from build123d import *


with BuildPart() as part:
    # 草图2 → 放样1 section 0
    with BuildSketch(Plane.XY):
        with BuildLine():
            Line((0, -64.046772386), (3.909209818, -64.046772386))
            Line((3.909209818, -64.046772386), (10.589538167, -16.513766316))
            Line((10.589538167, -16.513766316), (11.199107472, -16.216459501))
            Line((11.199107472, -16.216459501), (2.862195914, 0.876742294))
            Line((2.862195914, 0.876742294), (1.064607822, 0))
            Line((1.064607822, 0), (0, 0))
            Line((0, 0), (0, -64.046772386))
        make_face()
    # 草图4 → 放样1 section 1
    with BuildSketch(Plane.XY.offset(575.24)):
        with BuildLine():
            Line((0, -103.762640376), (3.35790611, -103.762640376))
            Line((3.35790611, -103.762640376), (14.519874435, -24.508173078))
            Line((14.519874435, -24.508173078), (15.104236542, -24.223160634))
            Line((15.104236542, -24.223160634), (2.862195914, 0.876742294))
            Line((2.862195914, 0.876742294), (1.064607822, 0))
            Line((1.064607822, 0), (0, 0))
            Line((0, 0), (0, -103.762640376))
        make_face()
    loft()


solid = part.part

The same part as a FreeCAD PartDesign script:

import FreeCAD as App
import Part
import Sketcher
Q = App.Units.Quantity


def add_polygon(sketch, points):
    """Adds a closed chain of lines whose ends are joined by coincident constraints."""
    first, n = sketch.GeometryCount, len(points)
    for a, b in zip(points, points[1:] + points[:1]):
        sketch.addGeometry(Part.LineSegment(App.Vector(*a, 0), App.Vector(*b, 0)), False)
    for i in range(n):
        sketch.addConstraint(Sketcher.Constraint("Coincident", first + i, 2, first + (i + 1) % n, 1))

doc = App.newDocument("Part")
body = doc.addObject("PartDesign::Body", "Body")

# Sketch on XY plane
sketch1 = doc.addObject("Sketcher::SketchObject", "Sketch")
body.addObject(sketch1)
sketch1.AttachmentSupport = (doc.XY_Plane, [""])
sketch1.MapMode = "FlatFace"
add_polygon(sketch1, [(0, -64), (3.9, -64), (10.6, -16.5), (11.2, -16.2), (2.9, 0.9), (1.1, 0), (0, 0)])  # lines 0-6
sketch1.addConstraint([
    Sketcher.Constraint("Horizontal", 0),
    Sketcher.Constraint("Horizontal", 5),
    Sketcher.Constraint("Vertical", 6),
    Sketcher.Constraint("Coincident", 5, 2, -1, 1),
    Sketcher.Constraint("Perpendicular", 2, 3),
    Sketcher.Constraint("Perpendicular", 3, 4),
    Sketcher.Constraint("Angle", 1, Q("82 deg")),
    Sketcher.Constraint("Angle", 2, Q("26 deg")),
    Sketcher.Constraint("Distance", 4, Q("2 mm")),
    Sketcher.Constraint("DistanceX", 0, 1, 0, 2, Q("3.90921 mm")),
    Sketcher.Constraint("DistanceY", 2, 2, 3, 2, Q("17.093202 mm")),
    Sketcher.Constraint("DistanceX", 4, 2, 0, 2, Q("2.844602 mm")),
    Sketcher.Constraint("Distance", 1, Q("48.00014 mm")),
])

# Sketch on XY plane
sketch2 = doc.addObject("Sketcher::SketchObject", "Sketch001")
body.addObject(sketch2)
sketch2.AttachmentSupport = (doc.XY_Plane, [""])
sketch2.MapMode = "FlatFace"
sketch2.AttachmentOffset = App.Placement(App.Vector(0, 0, 575.24), App.Rotation())
add_polygon(sketch2, [(0, -103.8), (3.4, -103.8), (14.5, -24.5), (15.1, -24.2), (2.9, 0.9), (1.1, 0), (0, 0)])  # lines 0-6
sketch2.addConstraint([
    Sketcher.Constraint("Horizontal", 0),
    Sketcher.Constraint("Horizontal", 5),
    Sketcher.Constraint("Vertical", 6),
    Sketcher.Constraint("Coincident", 5, 2, -1, 1),
    Sketcher.Constraint("Perpendicular", 2, 3),
    Sketcher.Constraint("Perpendicular", 3, 4),
    Sketcher.Constraint("Angle", 2, Q("26 deg")),
    Sketcher.Constraint("Distance", 4, Q("2 mm")),
    Sketcher.Constraint("Distance", 3, Q("27.926201 mm")),
    Sketcher.Constraint("DistanceY", 6, 2, 6, 1, Q("103.76264 mm")),
    Sketcher.Constraint("DistanceX", 4, 2, 0, 2, Q("2.293298 mm")),
    Sketcher.Constraint("DistanceX", 0, 1, 0, 2, Q("3.357906 mm")),
    Sketcher.Constraint("DistanceX", 0, 2, 1, 2, Q("11.161968 mm")),
])

additiveloft = doc.addObject("PartDesign::AdditiveLoft", "AdditiveLoft")
body.addObject(additiveloft)
additiveloft.Profile = sketch1
additiveloft.Sections = [sketch2]

doc.recompute()
